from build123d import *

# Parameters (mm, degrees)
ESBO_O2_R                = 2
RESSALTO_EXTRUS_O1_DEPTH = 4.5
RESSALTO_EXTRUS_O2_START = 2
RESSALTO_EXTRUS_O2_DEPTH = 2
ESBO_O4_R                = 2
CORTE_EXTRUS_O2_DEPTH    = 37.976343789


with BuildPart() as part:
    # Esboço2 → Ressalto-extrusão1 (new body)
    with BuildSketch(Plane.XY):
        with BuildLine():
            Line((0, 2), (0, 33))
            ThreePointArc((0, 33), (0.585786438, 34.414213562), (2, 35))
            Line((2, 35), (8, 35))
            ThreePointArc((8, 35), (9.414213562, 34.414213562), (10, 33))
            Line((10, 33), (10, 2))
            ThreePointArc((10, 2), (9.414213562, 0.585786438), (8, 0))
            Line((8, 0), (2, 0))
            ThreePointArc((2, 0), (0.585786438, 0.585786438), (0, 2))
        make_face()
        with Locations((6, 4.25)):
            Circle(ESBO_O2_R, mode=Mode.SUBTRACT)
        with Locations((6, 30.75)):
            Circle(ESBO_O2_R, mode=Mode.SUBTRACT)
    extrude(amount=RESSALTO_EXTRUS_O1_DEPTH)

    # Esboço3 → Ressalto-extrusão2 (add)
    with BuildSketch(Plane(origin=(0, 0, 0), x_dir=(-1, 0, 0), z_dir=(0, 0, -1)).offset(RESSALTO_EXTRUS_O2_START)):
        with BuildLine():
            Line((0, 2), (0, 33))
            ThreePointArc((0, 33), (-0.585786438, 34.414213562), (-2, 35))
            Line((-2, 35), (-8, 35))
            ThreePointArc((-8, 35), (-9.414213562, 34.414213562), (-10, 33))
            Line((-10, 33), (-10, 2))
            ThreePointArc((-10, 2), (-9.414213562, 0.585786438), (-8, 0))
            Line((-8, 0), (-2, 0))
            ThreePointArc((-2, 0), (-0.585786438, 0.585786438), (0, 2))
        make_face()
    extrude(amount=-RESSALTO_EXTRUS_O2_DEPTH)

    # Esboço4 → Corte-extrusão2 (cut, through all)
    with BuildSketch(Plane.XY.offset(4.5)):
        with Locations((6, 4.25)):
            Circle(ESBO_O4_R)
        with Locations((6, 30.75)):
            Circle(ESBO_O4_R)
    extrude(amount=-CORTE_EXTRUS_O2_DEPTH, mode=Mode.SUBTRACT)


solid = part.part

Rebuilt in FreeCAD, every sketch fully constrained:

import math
import FreeCAD as App
import Part
import Sketcher

V = App.Vector
Q = App.Units.Quantity

doc = App.newDocument("Part")
body = doc.addObject("PartDesign::Body", "Body")

sketch1 = doc.addObject("Sketcher::SketchObject", "Sketch")
body.addObject(sketch1)
sketch1.AttachmentSupport = (doc.XY_Plane, [""])
sketch1.MapMode = "FlatFace"
sketch1.addGeometry([
    Part.LineSegment(V(0, 33, 0), V(0, 2, 0)),
    Part.ArcOfCircle(Part.Circle(V(2, 2, 0), V(0, 0, 1), 2), math.radians(-180), math.radians(-90)),
    Part.LineSegment(V(2, 0, 0), V(8, 0, 0)),
    Part.ArcOfCircle(Part.Circle(V(8, 2, 0), V(0, 0, 1), 2), math.radians(-90), math.radians(0)),
    Part.LineSegment(V(10, 2, 0), V(10, 33, 0)),
    Part.ArcOfCircle(Part.Circle(V(8, 33, 0), V(0, 0, 1), 2), math.radians(0), math.radians(90)),
    Part.LineSegment(V(8, 35, 0), V(2, 35, 0)),
    Part.ArcOfCircle(Part.Circle(V(2, 33, 0), V(0, 0, 1), 2), math.radians(90), math.radians(180)),
    Part.Circle(V(6, 4.25, 0), V(0, 0, 1), 2),
    Part.Circle(V(6, 30.75, 0), V(0, 0, 1), 2),
], False)
sketch1.addConstraint([
    Sketcher.Constraint("Tangent", 0, 2, 1, 1),
    Sketcher.Constraint("Tangent", 1, 2, 2, 1),
    Sketcher.Constraint("Tangent", 2, 2, 3, 1),
    Sketcher.Constraint("Tangent", 3, 2, 4, 1),
    Sketcher.Constraint("Tangent", 4, 2, 5, 1),
    Sketcher.Constraint("Tangent", 5, 2, 6, 1),
    Sketcher.Constraint("Tangent", 6, 2, 7, 1),
    Sketcher.Constraint("Tangent", 7, 2, 0, 1),
    Sketcher.Constraint("Vertical", 0),
    Sketcher.Constraint("Horizontal", 2),
    Sketcher.Constraint("Vertical", 4),
    Sketcher.Constraint("Horizontal", 6),
    Sketcher.Constraint("Equal", 1, 3),
    Sketcher.Constraint("Equal", 3, 5),
    Sketcher.Constraint("Equal", 5, 7),
    Sketcher.Constraint("Equal", 7, 8),
    Sketcher.Constraint("Equal", 8, 9),
    Sketcher.Constraint("PointOnObject", 0, 2, -2),
    Sketcher.Constraint("PointOnObject", 1, 2, -1),
    Sketcher.Constraint("Vertical", 8, 3, 9, 3),
    Sketcher.Constraint("Diameter", 8, Q("4 mm")),
    Sketcher.Constraint("DistanceX", 2, 1, 2, 2, Q("6 mm")),
    Sketcher.Constraint("DistanceY", 0, 2, 0, 1, Q("31 mm")),
    Sketcher.Constraint("DistanceX", -1, 1, 8, 3, Q("6 mm")),
    Sketcher.Constraint("DistanceY", 8, 3, 9, 3, Q("26.5 mm")),
    Sketcher.Constraint("DistanceY", -1, 1, 8, 3, Q("4.25 mm")),
])
pad1 = doc.addObject("PartDesign::Pad", "Pad")
body.addObject(pad1)
pad1.Profile = sketch1
pad1.Length = 4.5

sketch2 = doc.addObject("Sketcher::SketchObject", "Sketch001")
body.addObject(sketch2)
sketch2.AttachmentSupport = (doc.XY_Plane, [""])
sketch2.MapMode = "FlatFace"
sketch2.AttachmentOffset = App.Placement(V(0, 0, -2), App.Rotation())
sketch2.addGeometry([
    Part.LineSegment(V(0, 2, 0), V(0, 33, 0)),
    Part.ArcOfCircle(Part.Circle(V(2, 33, 0), V(0, 0, 1), 2), math.radians(90), math.radians(180)),
    Part.LineSegment(V(2, 35, 0), V(8, 35, 0)),
    Part.ArcOfCircle(Part.Circle(V(8, 33, 0), V(0, 0, 1), 2), math.radians(0), math.radians(90)),
    Part.LineSegment(V(10, 33, 0), V(10, 2, 0)),
    Part.ArcOfCircle(Part.Circle(V(8, 2, 0), V(0, 0, 1), 2), math.radians(-90), math.radians(0)),
    Part.LineSegment(V(8, 0, 0), V(2, 0, 0)),
    Part.ArcOfCircle(Part.Circle(V(2, 2, 0), V(0, 0, 1), 2), math.radians(-180), math.radians(-90)),
], False)
sketch2.addConstraint([
    Sketcher.Constraint("Tangent", 0, 2, 1, 2),
    Sketcher.Constraint("Tangent", 1, 1, 2, 1),
    Sketcher.Constraint("Tangent", 2, 2, 3, 2),
    Sketcher.Constraint("Tangent", 3, 1, 4, 1),
    Sketcher.Constraint("Tangent", 4, 2, 5, 2),
    Sketcher.Constraint("Tangent", 5, 1, 6, 1),
    Sketcher.Constraint("Tangent", 6, 2, 7, 2),
    Sketcher.Constraint("Tangent", 7, 1, 0, 1),
    Sketcher.Constraint("Vertical", 0),
    Sketcher.Constraint("Horizontal", 2),
    Sketcher.Constraint("Vertical", 4),
    Sketcher.Constraint("Horizontal", 6),
    Sketcher.Constraint("Equal", 1, 3),
    Sketcher.Constraint("Equal", 3, 5),
    Sketcher.Constraint("Equal", 5, 7),
    Sketcher.Constraint("PointOnObject", 0, 2, -2),
    Sketcher.Constraint("PointOnObject", 5, 1, -1),
    Sketcher.Constraint("Radius", 1, Q("2 mm")),
    Sketcher.Constraint("DistanceX", 2, 1, 2, 2, Q("6 mm")),
    Sketcher.Constraint("DistanceY", 0, 1, 0, 2, Q("31 mm")),
])
pad2 = doc.addObject("PartDesign::Pad", "Pad001")
body.addObject(pad2)
pad2.Profile = sketch2
pad2.Length = 2

sketch3 = doc.addObject("Sketcher::SketchObject", "Sketch002")
body.addObject(sketch3)
sketch3.AttachmentSupport = (doc.XY_Plane, [""])
sketch3.MapMode = "FlatFace"
sketch3.AttachmentOffset = App.Placement(V(0, 0, 4.5), App.Rotation())
sketch3.addGeometry([
    Part.Circle(V(6, 4.25, 0), V(0, 0, 1), 2),
    Part.Circle(V(6, 30.75, 0), V(0, 0, 1), 2),
], False)
sketch3.addConstraint([
    Sketcher.Constraint("Equal", 0, 1),
    Sketcher.Constraint("Vertical", 0, 3, 1, 3),
    Sketcher.Constraint("Diameter", 0, Q("4 mm")),
    Sketcher.Constraint("DistanceX", -1, 1, 0, 3, Q("6 mm")),
    Sketcher.Constraint("DistanceY", 0, 3, 1, 3, Q("26.5 mm")),
    Sketcher.Constraint("DistanceY", -1, 1, 0, 3, Q("4.25 mm")),
])
pocket1 = doc.addObject("PartDesign::Pocket", "Pocket")
body.addObject(pocket1)
pocket1.Profile = sketch3
pocket1.Type = "ThroughAll"

doc.recompute()
